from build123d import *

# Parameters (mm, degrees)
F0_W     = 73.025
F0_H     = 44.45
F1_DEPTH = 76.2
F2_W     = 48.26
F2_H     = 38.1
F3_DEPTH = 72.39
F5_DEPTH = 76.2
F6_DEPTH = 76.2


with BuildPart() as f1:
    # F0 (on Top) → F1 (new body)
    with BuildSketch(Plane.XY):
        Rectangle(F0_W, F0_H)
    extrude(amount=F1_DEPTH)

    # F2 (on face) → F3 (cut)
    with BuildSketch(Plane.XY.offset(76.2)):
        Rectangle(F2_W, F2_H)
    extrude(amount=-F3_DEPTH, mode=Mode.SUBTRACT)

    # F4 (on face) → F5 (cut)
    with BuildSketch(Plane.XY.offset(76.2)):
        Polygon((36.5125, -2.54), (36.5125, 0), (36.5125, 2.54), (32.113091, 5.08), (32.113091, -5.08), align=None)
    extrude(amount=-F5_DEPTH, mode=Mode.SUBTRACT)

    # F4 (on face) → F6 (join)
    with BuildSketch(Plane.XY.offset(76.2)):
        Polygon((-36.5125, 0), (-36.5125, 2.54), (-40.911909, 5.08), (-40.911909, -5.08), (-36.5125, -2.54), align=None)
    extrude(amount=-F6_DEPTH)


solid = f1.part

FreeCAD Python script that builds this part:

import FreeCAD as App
import Part
import Sketcher
from FreeCAD import Vector
Q = App.Units.Quantity


def add_polygon(sketch, points):
    """Adds a closed chain of lines whose ends are joined by coincident constraints."""
    first, n = sketch.GeometryCount, len(points)
    for a, b in zip(points, points[1:] + points[:1]):
        sketch.addGeometry(Part.LineSegment(App.Vector(*a, 0), App.Vector(*b, 0)), False)
    for i in range(n):
        sketch.addConstraint(Sketcher.Constraint("Coincident", first + i, 2, first + (i + 1) % n, 1))

doc = App.newDocument("Part")
body = doc.addObject("PartDesign::Body", "Body")

sketch1 = body.newObject("Sketcher::SketchObject", "Sketch")
sketch1.AttachmentSupport = (doc.getObject("XY_Plane"), [""])
sketch1.MapMode = "FlatFace"
add_polygon(sketch1, [(-37, 22), (-37, -22), (37, -22), (37, 22)])
sketch1.addConstraint([
    Sketcher.Constraint("Vertical", 0),
    Sketcher.Constraint("Horizontal", 1),
    Sketcher.Constraint("Vertical", 2),
    Sketcher.Constraint("Horizontal", 3),
    Sketcher.Constraint("Symmetric", 0, 2, 2, 2, -1, 1),
    Sketcher.Constraint("DistanceY", 0, 2, 0, 1, Q("1.75 in")),
    Sketcher.Constraint("DistanceX", 1, 1, 1, 2, Q("2.875 in")),
])
pad1 = body.newObject("PartDesign::Pad", "Pad")
pad1.Profile = sketch1
pad1.Length = Q("3 in")

sketch2 = body.newObject("Sketcher::SketchObject", "Sketch001")
sketch2.AttachmentSupport = (doc.getObject("XY_Plane"), [""])
sketch2.MapMode = "FlatFace"
sketch2.AttachmentOffset = App.Placement(Vector(0, 0, 3 * 25.4), App.Rotation())
add_polygon(sketch2, [(-24, 19), (-24, -19), (24, -19), (24, 19)])
sketch2.addConstraint([
    Sketcher.Constraint("Vertical", 0),
    Sketcher.Constraint("Horizontal", 1),
    Sketcher.Constraint("Vertical", 2),
    Sketcher.Constraint("Horizontal", 3),
    Sketcher.Constraint("Symmetric", 0, 2, 2, 2, -1, 1),
    Sketcher.Constraint("DistanceX", 1, 1, 1, 2, Q("1.9 in")),
    Sketcher.Constraint("DistanceY", 0, 2, 0, 1, Q("1.5 in")),
])
pocket1 = body.newObject("PartDesign::Pocket", "Pocket")
pocket1.Profile = sketch2
pocket1.Length = Q("2.85 in")

sketch3 = body.newObject("Sketcher::SketchObject", "Sketch002")
sketch3.AttachmentSupport = (doc.getObject("XY_Plane"), [""])
sketch3.MapMode = "FlatFace"
sketch3.AttachmentOffset = App.Placement(Vector(0, 0, 3 * 25.4), App.Rotation())
add_polygon(sketch3, [(37, -3), (37, 3), (32, 5), (32, -5)])
sketch3.addConstraint([
    Sketcher.Constraint("Vertical", 0),
    Sketcher.Constraint("Vertical", 2),
    Sketcher.Constraint("Equal", 1, 3),
    Sketcher.Constraint("DistanceY", 0, 1, 0, 2, Q("0.2 in")),
    Sketcher.Constraint("DistanceY", 2, 2, 2, 1, Q("0.4 in")),
    Sketcher.Constraint("Angle", 1, Q("150 deg")),
    Sketcher.Constraint("DistanceY", -1, 1, 0, 2, Q("0.1 in")),
    Sketcher.Constraint("DistanceX", -1, 1, 0, 2, Q("1.4375 in")),
])
pocket2 = body.newObject("PartDesign::Pocket", "Pocket001")
pocket2.Profile = sketch3
pocket2.Length = Q("3 in")

sketch4 = body.newObject("Sketcher::SketchObject", "Sketch003")
sketch4.AttachmentSupport = (doc.getObject("XY_Plane"), [""])
sketch4.MapMode = "FlatFace"
sketch4.AttachmentOffset = App.Placement(Vector(0, 0, 3 * 25.4), App.Rotation())
add_polygon(sketch4, [(-37, 3), (-41, 5), (-41, -5), (-37, -3)])
sketch4.addConstraint([
    Sketcher.Constraint("Vertical", 1),
    Sketcher.Constraint("Vertical", 3),
    Sketcher.Constraint("Equal", 0, 2),
    Sketcher.Constraint("DistanceY", 1, 2, 1, 1, Q("0.4 in")),
    Sketcher.Constraint("DistanceY", 3, 1, 3, 2, Q("0.2 in")),
    Sketcher.Constraint("Angle", 0, Q("150 deg")),
    Sketcher.Constraint("DistanceY", -1, 1, 0, 2, Q("0.2 in")),
    Sketcher.Constraint("DistanceX", 2, 2, -1, 1, Q("1.4375 in")),
])
pad2 = body.newObject("PartDesign::Pad", "Pad001")
pad2.Profile = sketch4
pad2.Length = Q("3 in")
pad2.Reversed = True

doc.recompute()
